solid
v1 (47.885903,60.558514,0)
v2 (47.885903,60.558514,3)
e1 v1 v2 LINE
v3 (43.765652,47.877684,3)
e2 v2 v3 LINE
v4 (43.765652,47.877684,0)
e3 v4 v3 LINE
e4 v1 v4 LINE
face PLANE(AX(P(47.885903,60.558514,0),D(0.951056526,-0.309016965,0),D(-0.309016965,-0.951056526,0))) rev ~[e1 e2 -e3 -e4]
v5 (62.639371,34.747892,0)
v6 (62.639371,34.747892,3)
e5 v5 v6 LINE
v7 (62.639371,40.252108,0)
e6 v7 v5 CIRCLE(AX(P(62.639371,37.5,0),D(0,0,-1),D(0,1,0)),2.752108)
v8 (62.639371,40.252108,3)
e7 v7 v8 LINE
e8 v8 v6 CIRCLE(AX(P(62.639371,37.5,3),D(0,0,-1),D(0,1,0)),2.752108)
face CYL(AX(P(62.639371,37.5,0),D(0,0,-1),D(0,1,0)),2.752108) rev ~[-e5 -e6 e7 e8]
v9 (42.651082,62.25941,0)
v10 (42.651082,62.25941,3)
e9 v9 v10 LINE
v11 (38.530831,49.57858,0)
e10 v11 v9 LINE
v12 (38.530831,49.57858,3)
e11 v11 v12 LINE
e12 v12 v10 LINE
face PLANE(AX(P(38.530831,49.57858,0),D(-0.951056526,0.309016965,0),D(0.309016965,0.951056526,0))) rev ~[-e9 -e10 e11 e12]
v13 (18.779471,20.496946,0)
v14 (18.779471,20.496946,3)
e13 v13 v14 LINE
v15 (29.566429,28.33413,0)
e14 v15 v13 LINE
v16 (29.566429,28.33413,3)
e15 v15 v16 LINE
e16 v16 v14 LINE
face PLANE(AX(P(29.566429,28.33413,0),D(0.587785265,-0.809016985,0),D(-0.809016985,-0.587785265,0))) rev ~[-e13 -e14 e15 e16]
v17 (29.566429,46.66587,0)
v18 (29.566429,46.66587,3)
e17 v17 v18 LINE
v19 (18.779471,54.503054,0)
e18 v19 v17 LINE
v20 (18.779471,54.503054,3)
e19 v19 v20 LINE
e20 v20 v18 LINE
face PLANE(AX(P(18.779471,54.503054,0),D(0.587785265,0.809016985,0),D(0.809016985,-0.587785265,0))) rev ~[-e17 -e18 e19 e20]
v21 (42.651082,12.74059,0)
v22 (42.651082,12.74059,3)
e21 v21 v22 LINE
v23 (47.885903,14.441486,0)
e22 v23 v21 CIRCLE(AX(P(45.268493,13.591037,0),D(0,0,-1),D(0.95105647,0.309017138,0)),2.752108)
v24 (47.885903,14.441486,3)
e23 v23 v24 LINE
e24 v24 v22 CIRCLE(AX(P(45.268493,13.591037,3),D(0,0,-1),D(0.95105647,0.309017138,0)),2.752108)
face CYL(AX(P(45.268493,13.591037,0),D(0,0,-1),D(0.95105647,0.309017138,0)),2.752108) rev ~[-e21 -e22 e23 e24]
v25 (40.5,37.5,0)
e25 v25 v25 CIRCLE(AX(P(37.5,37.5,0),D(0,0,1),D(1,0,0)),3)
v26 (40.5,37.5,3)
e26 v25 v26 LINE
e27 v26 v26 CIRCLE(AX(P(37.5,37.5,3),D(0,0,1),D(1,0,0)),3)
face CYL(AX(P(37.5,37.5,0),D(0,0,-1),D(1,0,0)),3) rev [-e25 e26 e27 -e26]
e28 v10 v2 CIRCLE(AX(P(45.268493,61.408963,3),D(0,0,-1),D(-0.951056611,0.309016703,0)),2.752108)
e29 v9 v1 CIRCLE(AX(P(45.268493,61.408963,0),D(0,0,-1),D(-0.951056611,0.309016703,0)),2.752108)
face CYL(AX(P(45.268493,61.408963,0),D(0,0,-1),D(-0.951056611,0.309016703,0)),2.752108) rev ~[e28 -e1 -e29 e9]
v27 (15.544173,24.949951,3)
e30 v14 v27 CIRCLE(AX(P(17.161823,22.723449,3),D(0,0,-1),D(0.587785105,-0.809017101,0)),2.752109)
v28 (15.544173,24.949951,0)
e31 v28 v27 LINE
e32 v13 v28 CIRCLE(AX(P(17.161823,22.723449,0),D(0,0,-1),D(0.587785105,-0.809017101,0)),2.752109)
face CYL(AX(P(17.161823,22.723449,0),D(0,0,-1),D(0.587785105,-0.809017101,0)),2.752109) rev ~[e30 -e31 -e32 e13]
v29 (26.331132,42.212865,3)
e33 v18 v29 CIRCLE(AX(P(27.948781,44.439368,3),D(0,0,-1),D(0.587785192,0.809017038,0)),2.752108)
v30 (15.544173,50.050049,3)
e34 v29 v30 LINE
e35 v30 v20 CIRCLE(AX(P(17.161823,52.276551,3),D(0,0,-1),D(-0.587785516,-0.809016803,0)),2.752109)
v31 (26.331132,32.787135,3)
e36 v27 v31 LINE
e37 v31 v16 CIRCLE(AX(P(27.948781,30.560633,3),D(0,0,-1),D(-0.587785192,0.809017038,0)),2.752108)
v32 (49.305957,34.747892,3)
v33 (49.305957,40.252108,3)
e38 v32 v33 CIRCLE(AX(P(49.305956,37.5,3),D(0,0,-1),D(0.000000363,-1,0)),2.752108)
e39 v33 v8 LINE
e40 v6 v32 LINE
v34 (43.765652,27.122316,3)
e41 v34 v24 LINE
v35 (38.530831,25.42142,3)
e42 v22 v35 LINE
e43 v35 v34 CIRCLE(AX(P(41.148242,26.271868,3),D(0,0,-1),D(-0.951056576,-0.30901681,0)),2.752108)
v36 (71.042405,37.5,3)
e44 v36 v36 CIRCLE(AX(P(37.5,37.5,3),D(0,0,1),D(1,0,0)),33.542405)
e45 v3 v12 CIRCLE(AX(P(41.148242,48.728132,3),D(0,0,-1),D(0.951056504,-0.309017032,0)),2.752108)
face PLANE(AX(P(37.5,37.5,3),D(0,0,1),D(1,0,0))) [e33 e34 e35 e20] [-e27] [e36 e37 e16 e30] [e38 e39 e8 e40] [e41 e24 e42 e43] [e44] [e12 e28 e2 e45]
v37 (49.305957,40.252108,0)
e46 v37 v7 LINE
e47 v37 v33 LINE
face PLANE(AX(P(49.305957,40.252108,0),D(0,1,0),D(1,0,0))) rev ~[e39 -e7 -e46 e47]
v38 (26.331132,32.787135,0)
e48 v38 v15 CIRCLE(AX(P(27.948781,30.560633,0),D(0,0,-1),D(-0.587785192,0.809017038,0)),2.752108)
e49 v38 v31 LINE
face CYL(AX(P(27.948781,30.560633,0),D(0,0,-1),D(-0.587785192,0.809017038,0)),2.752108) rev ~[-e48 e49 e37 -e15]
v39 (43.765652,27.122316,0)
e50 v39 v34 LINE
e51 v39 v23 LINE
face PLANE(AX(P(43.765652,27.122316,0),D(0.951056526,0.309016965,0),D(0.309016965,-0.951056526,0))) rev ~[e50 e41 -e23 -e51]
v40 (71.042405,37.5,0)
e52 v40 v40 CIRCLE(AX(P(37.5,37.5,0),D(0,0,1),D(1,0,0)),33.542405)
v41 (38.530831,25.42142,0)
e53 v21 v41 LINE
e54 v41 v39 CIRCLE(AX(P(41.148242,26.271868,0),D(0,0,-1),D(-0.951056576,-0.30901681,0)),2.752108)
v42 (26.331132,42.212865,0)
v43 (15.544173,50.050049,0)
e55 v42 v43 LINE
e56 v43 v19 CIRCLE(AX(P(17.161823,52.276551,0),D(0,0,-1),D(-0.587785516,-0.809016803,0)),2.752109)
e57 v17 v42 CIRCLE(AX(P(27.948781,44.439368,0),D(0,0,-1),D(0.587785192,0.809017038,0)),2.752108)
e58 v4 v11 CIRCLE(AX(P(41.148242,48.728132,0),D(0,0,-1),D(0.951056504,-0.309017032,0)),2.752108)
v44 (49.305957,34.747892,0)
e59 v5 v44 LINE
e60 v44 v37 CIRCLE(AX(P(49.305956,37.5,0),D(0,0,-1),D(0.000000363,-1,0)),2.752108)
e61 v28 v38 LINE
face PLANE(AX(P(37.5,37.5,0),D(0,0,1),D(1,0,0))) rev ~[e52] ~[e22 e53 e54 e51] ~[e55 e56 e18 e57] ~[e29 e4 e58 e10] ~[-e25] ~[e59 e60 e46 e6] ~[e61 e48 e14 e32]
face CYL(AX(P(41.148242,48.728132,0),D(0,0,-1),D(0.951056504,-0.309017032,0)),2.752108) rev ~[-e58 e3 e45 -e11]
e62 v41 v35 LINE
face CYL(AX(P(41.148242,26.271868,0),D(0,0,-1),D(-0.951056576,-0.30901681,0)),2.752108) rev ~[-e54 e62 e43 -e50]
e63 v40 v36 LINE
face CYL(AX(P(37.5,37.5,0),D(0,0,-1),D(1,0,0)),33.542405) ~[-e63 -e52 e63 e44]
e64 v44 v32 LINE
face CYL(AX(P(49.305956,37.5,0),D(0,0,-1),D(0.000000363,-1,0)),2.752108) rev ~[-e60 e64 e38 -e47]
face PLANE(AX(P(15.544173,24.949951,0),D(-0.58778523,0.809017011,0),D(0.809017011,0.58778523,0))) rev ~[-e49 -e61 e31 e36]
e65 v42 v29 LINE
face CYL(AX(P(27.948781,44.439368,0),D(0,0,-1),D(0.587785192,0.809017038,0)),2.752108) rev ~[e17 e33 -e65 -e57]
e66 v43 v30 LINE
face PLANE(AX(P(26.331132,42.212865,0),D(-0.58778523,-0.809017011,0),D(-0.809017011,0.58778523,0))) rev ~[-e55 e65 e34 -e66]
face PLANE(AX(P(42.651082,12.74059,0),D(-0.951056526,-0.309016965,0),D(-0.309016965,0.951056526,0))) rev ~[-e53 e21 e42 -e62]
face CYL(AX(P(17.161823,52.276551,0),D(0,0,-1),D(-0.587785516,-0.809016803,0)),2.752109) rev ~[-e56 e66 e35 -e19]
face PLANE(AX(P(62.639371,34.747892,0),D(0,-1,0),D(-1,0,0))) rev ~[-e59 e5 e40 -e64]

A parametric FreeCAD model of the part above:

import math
import FreeCAD as App
import Part
import Sketcher
Q = App.Units.Quantity

doc = App.newDocument("Part")
body = doc.addObject("PartDesign::Body", "Body")

# Sketch on XY plane
sketch1 = body.newObject("Sketcher::SketchObject", "Sketch")
sketch1.AttachmentSupport = (doc.getObject("XY_Plane"), [""])
sketch1.MapMode = "FlatFace"
sketch1.addGeometry([
    Part.Circle(App.Vector(37.5, 37.5, 0), App.Vector(0, 0, 1), 33.542405),  # 0
    Part.LineSegment(App.Vector(29.566429, 28.33413, 0), App.Vector(18.779471, 20.496946, 0)),  # 1
    Part.ArcOfCircle(Part.Circle(App.Vector(17.161823, 22.723449, 0), App.Vector(0, 0, 1), 2.752109), math.radians(126.000019), math.radians(305.99999)),  # 2
    Part.LineSegment(App.Vector(15.544173, 24.949951, 0), App.Vector(26.331132, 32.787135, 0)),  # 3
    Part.ArcOfCircle(Part.Circle(App.Vector(27.948781, 30.560633, 0), App.Vector(0, 0, 1), 2.752108), math.radians(-54.000004), math.radians(125.999996)),  # 4
    Part.Circle(App.Vector(37.5, 37.5, 0), App.Vector(0, 0, 1), 3),  # 5
    Part.LineSegment(App.Vector(43.765652, 27.122316, 0), App.Vector(47.885903, 14.441486, 0)),  # 6
    Part.ArcOfCircle(Part.Circle(App.Vector(45.268493, 13.591037, 0), App.Vector(0, 0, 1), 2.752108), math.radians(-162.000018), math.radians(18.000009)),  # 7
    Part.LineSegment(App.Vector(42.651082, 12.74059, 0), App.Vector(38.530831, 25.42142, 0)),  # 8
    Part.ArcOfCircle(Part.Circle(App.Vector(41.148242, 26.271868, 0), App.Vector(0, 0, 1), 2.752108), math.radians(18.000002), math.radians(197.999989)),  # 9
    Part.LineSegment(App.Vector(62.639371, 34.747892, 0), App.Vector(49.305957, 34.747892, 0)),  # 10
    Part.ArcOfCircle(Part.Circle(App.Vector(49.305956, 37.5, 0), App.Vector(0, 0, 1), 2.752108), math.radians(89.999979), math.radians(270.000021)),  # 11
    Part.LineSegment(App.Vector(49.305957, 40.252108, 0), App.Vector(62.639371, 40.252108, 0)),  # 12
    Part.ArcOfCircle(Part.Circle(App.Vector(62.639371, 37.5, 0), App.Vector(0, 0, 1), 2.752108), math.radians(-90), math.radians(90)),  # 13
    Part.LineSegment(App.Vector(26.331132, 42.212865, 0), App.Vector(15.544173, 50.050049, 0)),  # 14
    Part.ArcOfCircle(Part.Circle(App.Vector(17.161823, 52.276551, 0), App.Vector(0, 0, 1), 2.752109), math.radians(54.00001), math.radians(233.999981)),  # 15
    Part.LineSegment(App.Vector(18.779471, 54.503054, 0), App.Vector(29.566429, 46.66587, 0)),  # 16
    Part.ArcOfCircle(Part.Circle(App.Vector(27.948781, 44.439368, 0), App.Vector(0, 0, 1), 2.752108), math.radians(-125.999996), math.radians(54.000004)),  # 17
    Part.LineSegment(App.Vector(38.530831, 49.57858, 0), App.Vector(42.651082, 62.25941, 0)),  # 18
    Part.ArcOfCircle(Part.Circle(App.Vector(45.268493, 61.408963, 0), App.Vector(0, 0, 1), 2.752108), math.radians(-18.000009), math.radians(162.000018)),  # 19
    Part.LineSegment(App.Vector(47.885903, 60.558514, 0), App.Vector(43.765652, 47.877684, 0)),  # 20
    Part.ArcOfCircle(Part.Circle(App.Vector(41.148242, 48.728132, 0), App.Vector(0, 0, 1), 2.752108), math.radians(162.000011), math.radians(341.999998)),  # 21
], False)
sketch1.addConstraint([
    Sketcher.Constraint("Tangent", 1, 2, 2, 2),
    Sketcher.Constraint("Tangent", 2, 1, 3, 1),
    Sketcher.Constraint("Tangent", 3, 2, 4, 2),
    Sketcher.Constraint("Tangent", 4, 1, 1, 1),
    Sketcher.Constraint("Tangent", 6, 2, 7, 2),
    Sketcher.Constraint("Tangent", 7, 1, 8, 1),
    Sketcher.Constraint("Tangent", 8, 2, 9, 2),
    Sketcher.Constraint("Tangent", 9, 1, 6, 1),
    Sketcher.Constraint("Tangent", 10, 2, 11, 2),
    Sketcher.Constraint("Tangent", 11, 1, 12, 1),
    Sketcher.Constraint("Tangent", 12, 2, 13, 2),
    Sketcher.Constraint("Tangent", 13, 1, 10, 1),
    Sketcher.Constraint("Tangent", 14, 2, 15, 2),
    Sketcher.Constraint("Tangent", 15, 1, 16, 1),
    Sketcher.Constraint("Tangent", 16, 2, 17, 2),
    Sketcher.Constraint("Tangent", 17, 1, 14, 1),
    Sketcher.Constraint("Tangent", 18, 2, 19, 2),
    Sketcher.Constraint("Tangent", 19, 1, 20, 1),
    Sketcher.Constraint("Tangent", 20, 2, 21, 2),
    Sketcher.Constraint("Tangent", 21, 1, 18, 1),
    Sketcher.Constraint("Horizontal", 10),
    Sketcher.Constraint("Horizontal", 12),
    Sketcher.Constraint("Coincident", 5, 3, 0, 3),
    Sketcher.Constraint("Equal", 2, 4),
    Sketcher.Constraint("Equal", 4, 7),
    Sketcher.Constraint("Equal", 7, 9),
    Sketcher.Constraint("Equal", 9, 11),
    Sketcher.Constraint("Equal", 13, 15),
    Sketcher.Constraint("Equal", 15, 17),
    Sketcher.Constraint("Equal", 17, 19),
    Sketcher.Constraint("Equal", 19, 21),
    Sketcher.Constraint("Horizontal", 5, 3, 11, 3),
    Sketcher.Constraint("Vertical", 2, 3, 15, 3),
    Sketcher.Constraint("Vertical", 4, 3, 17, 3),
    Sketcher.Constraint("Vertical", 7, 3, 19, 3),
    Sketcher.Constraint("Vertical", 9, 3, 21, 3),
    Sketcher.Constraint("Vertical", 2, 1, 14, 2),
    Sketcher.Constraint("Vertical", 7, 1, 18, 2),
    Sketcher.Constraint("Equal", 3, 6),
    Sketcher.Constraint("Diameter", 5, 6.0),
    Sketcher.Constraint("Angle", 1, Q("-143.999999 deg")),
    Sketcher.Constraint("Angle", 6, Q("-72.000002 deg")),
    Sketcher.Constraint("DistanceX", -1, 1, 0, 3, 37.5),
    Sketcher.Constraint("DistanceY", -1, 1, 0, 3, 37.5),
    Sketcher.Constraint("Diameter", 0, 67.08481),
    Sketcher.Constraint("Radius", 2, 2.752109),
    Sketcher.Constraint("DistanceX", 4, 3, 7, 1, 14.702302),
    Sketcher.Constraint("DistanceX", 16, 2, 21, 1, 8.964402),
    Sketcher.Constraint("DistanceX", 10, 2, 10, 1, 13.333414),
    Sketcher.Constraint("DistanceY", -1, 1, 2, 3, 22.723449),
    Sketcher.Constraint("DistanceX", -1, 1, 4, 3, 27.948781),
    Sketcher.Constraint("DistanceX", -1, 1, 13, 3, 62.639371),
    Sketcher.Constraint("DistanceY", -1, 1, 15, 3, 52.276551),
    Sketcher.Constraint("DistanceY", -1, 1, 7, 1, 12.74059),
    Sketcher.Constraint("DistanceY", -1, 1, 18, 2, 62.25941),
])
pad1 = body.newObject("PartDesign::Pad", "Pad")
pad1.Profile = sketch1
pad1.Length = 3

doc.recompute()
